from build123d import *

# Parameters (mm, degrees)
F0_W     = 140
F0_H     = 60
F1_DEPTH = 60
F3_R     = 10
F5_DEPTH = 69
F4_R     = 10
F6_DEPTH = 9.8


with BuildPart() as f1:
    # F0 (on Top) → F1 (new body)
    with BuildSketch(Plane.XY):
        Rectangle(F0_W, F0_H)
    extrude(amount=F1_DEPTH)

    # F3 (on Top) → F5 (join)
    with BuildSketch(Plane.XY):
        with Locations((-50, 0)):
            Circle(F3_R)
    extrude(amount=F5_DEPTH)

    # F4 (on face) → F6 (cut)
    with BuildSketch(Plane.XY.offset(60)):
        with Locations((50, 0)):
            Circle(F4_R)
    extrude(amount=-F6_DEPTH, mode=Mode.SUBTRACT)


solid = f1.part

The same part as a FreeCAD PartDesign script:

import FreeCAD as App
import Part
import Sketcher

doc = App.newDocument("Part")
body = doc.addObject("PartDesign::Body", "Body")

# Sketch on XY plane
sketch1 = body.newObject("Sketcher::SketchObject", "Sketch")
sketch1.AttachmentSupport = (doc.getObject("XY_Plane"), [""])
sketch1.MapMode = "FlatFace"
sketch1.addGeometry([
    Part.LineSegment(App.Vector(-70, 30, 0), App.Vector(-70, -30, 0)),
    Part.LineSegment(App.Vector(-70, -30, 0), App.Vector(70, -30, 0)),
    Part.LineSegment(App.Vector(70, -30, 0), App.Vector(70, 30, 0)),
    Part.LineSegment(App.Vector(70, 30, 0), App.Vector(-70, 30, 0)),
], False)
sketch1.addConstraint([
    Sketcher.Constraint("Coincident", 0, 2, 1, 1),
    Sketcher.Constraint("Coincident", 1, 2, 2, 1),
    Sketcher.Constraint("Coincident", 2, 2, 3, 1),
    Sketcher.Constraint("Coincident", 3, 2, 0, 1),
    Sketcher.Constraint("Vertical", 0),
    Sketcher.Constraint("Horizontal", 1),
    Sketcher.Constraint("Vertical", 2),
    Sketcher.Constraint("Horizontal", 3),
    Sketcher.Constraint("Symmetric", 0, 2, 2, 2, -1, 1),
    Sketcher.Constraint("DistanceX", 1, 1, 1, 2, 140.0),
    Sketcher.Constraint("DistanceY", 0, 2, 0, 1, 60.0),
])
pad1 = body.newObject("PartDesign::Pad", "Pad")
pad1.Profile = sketch1
pad1.Length = 60

# Sketch on XY plane
sketch2 = body.newObject("Sketcher::SketchObject", "Sketch001")
sketch2.AttachmentSupport = (doc.getObject("XY_Plane"), [""])
sketch2.MapMode = "FlatFace"
sketch2.addGeometry(Part.Circle(App.Vector(-50, 0, 0), App.Vector(0, 0, 1), 10), False)
sketch2.addConstraint([
    Sketcher.Constraint("PointOnObject", 0, 3, -1),
    Sketcher.Constraint("Diameter", 0, 20.0),
    Sketcher.Constraint("DistanceX", 0, 3, -1, 1, 50.0),
])
pad2 = body.newObject("PartDesign::Pad", "Pad001")
pad2.Profile = sketch2
pad2.Length = 69

# Sketch on XY plane
sketch3 = body.newObject("Sketcher::SketchObject", "Sketch002")
sketch3.AttachmentSupport = (doc.getObject("XY_Plane"), [""])
sketch3.MapMode = "FlatFace"
sketch3.AttachmentOffset = App.Placement(App.Vector(0, 0, 60), App.Rotation())
sketch3.addGeometry(Part.Circle(App.Vector(50, 0, 0), App.Vector(0, 0, 1), 10), False)
sketch3.addConstraint([
    Sketcher.Constraint("PointOnObject", 0, 3, -1),
    Sketcher.Constraint("Diameter", 0, 20.0),
    Sketcher.Constraint("DistanceX", -1, 1, 0, 3, 50.0),
])
pocket1 = body.newObject("PartDesign::Pocket", "Pocket")
pocket1.Profile = sketch3
pocket1.Length = 9.8

doc.recompute()
